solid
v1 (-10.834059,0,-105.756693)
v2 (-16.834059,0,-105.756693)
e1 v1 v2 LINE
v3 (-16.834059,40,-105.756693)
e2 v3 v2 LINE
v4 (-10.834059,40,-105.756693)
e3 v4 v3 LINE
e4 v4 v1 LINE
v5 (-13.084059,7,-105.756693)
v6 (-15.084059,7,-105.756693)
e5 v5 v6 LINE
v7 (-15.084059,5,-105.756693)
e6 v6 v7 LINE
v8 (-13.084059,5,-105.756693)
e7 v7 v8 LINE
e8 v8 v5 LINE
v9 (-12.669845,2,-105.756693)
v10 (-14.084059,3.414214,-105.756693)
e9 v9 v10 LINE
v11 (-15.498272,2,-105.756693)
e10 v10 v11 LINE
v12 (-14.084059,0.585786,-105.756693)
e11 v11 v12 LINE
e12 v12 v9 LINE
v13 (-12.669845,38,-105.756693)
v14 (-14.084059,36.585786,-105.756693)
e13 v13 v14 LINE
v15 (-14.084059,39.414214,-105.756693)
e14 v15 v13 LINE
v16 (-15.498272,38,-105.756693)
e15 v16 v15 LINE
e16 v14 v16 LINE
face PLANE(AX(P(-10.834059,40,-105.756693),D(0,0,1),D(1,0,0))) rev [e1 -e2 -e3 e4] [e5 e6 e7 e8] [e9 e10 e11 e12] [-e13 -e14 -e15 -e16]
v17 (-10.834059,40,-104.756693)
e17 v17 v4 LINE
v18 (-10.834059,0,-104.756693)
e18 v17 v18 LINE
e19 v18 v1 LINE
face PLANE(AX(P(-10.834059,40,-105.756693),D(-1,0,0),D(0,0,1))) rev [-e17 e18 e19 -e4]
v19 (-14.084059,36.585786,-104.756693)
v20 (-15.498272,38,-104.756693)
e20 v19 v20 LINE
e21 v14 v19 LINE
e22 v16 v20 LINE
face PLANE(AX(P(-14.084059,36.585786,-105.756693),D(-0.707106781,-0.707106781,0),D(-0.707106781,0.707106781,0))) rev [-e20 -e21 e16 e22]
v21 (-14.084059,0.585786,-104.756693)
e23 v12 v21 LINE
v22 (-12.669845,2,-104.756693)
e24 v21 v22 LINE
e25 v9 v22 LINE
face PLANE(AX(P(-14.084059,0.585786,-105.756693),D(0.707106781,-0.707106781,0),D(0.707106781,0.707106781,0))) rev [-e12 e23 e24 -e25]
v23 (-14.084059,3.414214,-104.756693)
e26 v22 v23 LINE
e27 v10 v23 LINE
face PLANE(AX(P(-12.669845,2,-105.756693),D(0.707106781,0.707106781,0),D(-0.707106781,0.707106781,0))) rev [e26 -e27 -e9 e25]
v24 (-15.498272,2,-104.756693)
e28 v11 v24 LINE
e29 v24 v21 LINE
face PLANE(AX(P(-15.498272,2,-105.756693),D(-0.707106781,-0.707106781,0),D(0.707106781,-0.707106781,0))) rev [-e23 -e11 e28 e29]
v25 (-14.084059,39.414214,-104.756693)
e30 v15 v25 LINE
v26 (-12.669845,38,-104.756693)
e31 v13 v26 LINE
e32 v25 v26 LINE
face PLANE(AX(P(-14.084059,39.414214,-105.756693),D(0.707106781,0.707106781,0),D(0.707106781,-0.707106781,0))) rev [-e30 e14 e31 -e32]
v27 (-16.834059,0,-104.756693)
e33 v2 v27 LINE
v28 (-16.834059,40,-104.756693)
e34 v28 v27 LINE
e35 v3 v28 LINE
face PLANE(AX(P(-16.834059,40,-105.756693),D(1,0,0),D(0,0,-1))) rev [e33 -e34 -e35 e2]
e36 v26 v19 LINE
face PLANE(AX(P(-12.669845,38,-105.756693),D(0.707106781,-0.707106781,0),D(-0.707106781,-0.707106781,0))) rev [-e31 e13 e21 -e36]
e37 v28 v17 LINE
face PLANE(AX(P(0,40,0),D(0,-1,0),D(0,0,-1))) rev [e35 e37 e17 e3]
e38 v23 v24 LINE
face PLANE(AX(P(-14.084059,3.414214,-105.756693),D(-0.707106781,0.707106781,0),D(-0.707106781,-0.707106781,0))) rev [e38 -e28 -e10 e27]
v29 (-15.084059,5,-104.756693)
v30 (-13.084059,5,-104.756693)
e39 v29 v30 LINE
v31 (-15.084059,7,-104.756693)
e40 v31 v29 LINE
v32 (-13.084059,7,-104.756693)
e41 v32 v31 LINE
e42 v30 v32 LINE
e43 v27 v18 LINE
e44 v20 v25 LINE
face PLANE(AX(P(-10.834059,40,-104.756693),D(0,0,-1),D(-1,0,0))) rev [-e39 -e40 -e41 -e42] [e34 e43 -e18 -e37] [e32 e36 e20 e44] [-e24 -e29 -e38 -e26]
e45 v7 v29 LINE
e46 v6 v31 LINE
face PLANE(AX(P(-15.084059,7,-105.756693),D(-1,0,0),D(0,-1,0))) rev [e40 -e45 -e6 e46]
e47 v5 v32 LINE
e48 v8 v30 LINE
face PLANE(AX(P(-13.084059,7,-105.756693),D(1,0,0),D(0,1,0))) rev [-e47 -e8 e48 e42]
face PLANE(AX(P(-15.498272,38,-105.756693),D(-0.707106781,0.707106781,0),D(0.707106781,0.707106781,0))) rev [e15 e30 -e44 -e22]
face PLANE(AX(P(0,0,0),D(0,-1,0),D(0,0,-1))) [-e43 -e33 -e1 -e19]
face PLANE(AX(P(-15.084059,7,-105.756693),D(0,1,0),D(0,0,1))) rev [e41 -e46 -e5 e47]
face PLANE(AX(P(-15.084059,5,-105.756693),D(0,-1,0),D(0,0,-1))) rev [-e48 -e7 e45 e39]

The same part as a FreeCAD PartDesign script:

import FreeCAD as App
import Part
import Sketcher
from FreeCAD import Vector

doc = App.newDocument("Part")
params = doc.addObject("Spreadsheet::Sheet", "Params")
for row, (alias, value) in enumerate([
    ("sketch1_width", "6 mm"),
    ("sketch1_height", "1 mm"),
    ("pad1_length", "40 mm"),
    ("sketch2_length", "2 mm"),
    ("sketch3_width", "2 mm"),
], start=1):
    params.set(f"A{row}", alias)
    params.set(f"B{row}", "=" + value)
    params.setAlias(f"B{row}", alias)

body = doc.addObject("PartDesign::Body", "Body")

sketch1 = body.newObject("Sketcher::SketchObject", "Sketch")
sketch1.AttachmentSupport = (doc.getObject("XZ_Plane"), [""])
sketch1.MapMode = "FlatFace"
sketch1.addGeometry(Part.LineSegment(Vector(-10.834059, -104.756693, 0), Vector(-10.834059, -105.756693, 0)), False)
sketch1.addGeometry(Part.LineSegment(Vector(-10.834059, -105.756693, 0), Vector(-16.834059, -105.756693, 0)), False)
sketch1.addGeometry(Part.LineSegment(Vector(-16.834059, -105.756693, 0), Vector(-16.834059, -104.756693, 0)), False)
sketch1.addGeometry(Part.LineSegment(Vector(-16.834059, -104.756693, 0), Vector(-10.834059, -104.756693, 0)), False)
sketch1.addConstraint(Sketcher.Constraint("Coincident", 0, 2, 1, 1))
sketch1.addConstraint(Sketcher.Constraint("Coincident", 1, 2, 2, 1))
sketch1.addConstraint(Sketcher.Constraint("Coincident", 2, 2, 3, 1))
sketch1.addConstraint(Sketcher.Constraint("Coincident", 3, 2, 0, 1))
sketch1.addConstraint(Sketcher.Constraint("Vertical", 0))
sketch1.addConstraint(Sketcher.Constraint("Horizontal", 1))
sketch1.addConstraint(Sketcher.Constraint("Vertical", 2))
sketch1.addConstraint(Sketcher.Constraint("Horizontal", 3))
sketch1.addConstraint(Sketcher.Constraint("DistanceX", 1, 2, 1, 1, 6.0))
sketch1.addConstraint(Sketcher.Constraint("DistanceY", 0, 2, 0, 1, 1.0))
sketch1.addConstraint(Sketcher.Constraint("DistanceX", 0, 2, -1, 1, 10.834059))
sketch1.addConstraint(Sketcher.Constraint("DistanceY", 0, 2, -1, 1, 105.756693))
sketch1.setExpression("Constraints[8]", "Params.sketch1_width")
sketch1.setExpression("Constraints[9]", "Params.sketch1_height")
pad1 = body.newObject("PartDesign::Pad", "Pad")
pad1.Profile = sketch1
pad1.setExpression("Length", "Params.pad1_length")
pad1.Reversed = True

sketch2 = body.newObject("Sketcher::SketchObject", "Sketch001")
sketch2.AttachmentSupport = (doc.getObject("XY_Plane"), [""])
sketch2.MapMode = "FlatFace"
sketch2.AttachmentOffset = App.Placement(Vector(0, 0, -104.756693), App.Rotation())
sketch2.addGeometry(Part.LineSegment(Vector(-12.669845, 2, 0), Vector(-14.084059, 3.414214, 0)), False)
sketch2.addGeometry(Part.LineSegment(Vector(-14.084059, 3.414214, 0), Vector(-15.498272, 2, 0)), False)
sketch2.addGeometry(Part.LineSegment(Vector(-15.498272, 2, 0), Vector(-14.084059, 0.585786, 0)), False)
sketch2.addGeometry(Part.LineSegment(Vector(-14.084059, 0.585786, 0), Vector(-12.669845, 2, 0)), False)
sketch2.addConstraint(Sketcher.Constraint("Coincident", 0, 2, 1, 1))
sketch2.addConstraint(Sketcher.Constraint("Coincident", 1, 2, 2, 1))
sketch2.addConstraint(Sketcher.Constraint("Coincident", 2, 2, 3, 1))
sketch2.addConstraint(Sketcher.Constraint("Coincident", 3, 2, 0, 1))
sketch2.addConstraint(Sketcher.Constraint("Perpendicular", 0, 1))
sketch2.addConstraint(Sketcher.Constraint("Perpendicular", 1, 2))
sketch2.addConstraint(Sketcher.Constraint("Perpendicular", 2, 3))
sketch2.addConstraint(Sketcher.Constraint("Horizontal", 1, 2, 3, 2))
sketch2.addConstraint(Sketcher.Constraint("Vertical", 0, 2, 2, 2))
sketch2.addConstraint(Sketcher.Constraint("Distance", 0, 2.0))
sketch2.addConstraint(Sketcher.Constraint("DistanceY", -1, 1, 1, 2, 2.0))
sketch2.addConstraint(Sketcher.Constraint("DistanceX", 0, 2, -1, 1, 14.084059))
sketch2.setExpression("Constraints[9]", "Params.sketch2_length")
pocket1 = body.newObject("PartDesign::Pocket", "Pocket")
pocket1.Profile = sketch2
pocket1.Type = "ThroughAll"
doc.recompute()

datumplane = body.newObject("PartDesign::Plane", "DatumPlane")
datumplane.AttachmentSupport = (doc.getObject("XZ_Plane"), [""])
datumplane.MapMode = "FlatFace"
datumplane.AttachmentOffset = App.Placement(Vector(0, 0, -20), App.Rotation())
mirrored = body.newObject("PartDesign::Mirrored", "Mirrored")
mirrored.Originals = [pocket1]
mirrored.MirrorPlane = (datumplane, [""])
body.Tip = mirrored

sketch3 = body.newObject("Sketcher::SketchObject", "Sketch002")
sketch3.AttachmentSupport = (doc.getObject("XY_Plane"), [""])
sketch3.MapMode = "FlatFace"
sketch3.AttachmentOffset = App.Placement(Vector(0, 0, -104.756693), App.Rotation())
sketch3.addGeometry(Part.LineSegment(Vector(-15.084059, 7, 0), Vector(-15.084059, 5, 0)), False)
sketch3.addGeometry(Part.LineSegment(Vector(-15.084059, 5, 0), Vector(-13.084059, 5, 0)), False)
sketch3.addGeometry(Part.LineSegment(Vector(-13.084059, 5, 0), Vector(-13.084059, 7, 0)), False)
sketch3.addGeometry(Part.LineSegment(Vector(-13.084059, 7, 0), Vector(-15.084059, 7, 0)), False)
sketch3.addConstraint(Sketcher.Constraint("Coincident", 0, 2, 1, 1))
sketch3.addConstraint(Sketcher.Constraint("Coincident", 1, 2, 2, 1))
sketch3.addConstraint(Sketcher.Constraint("Coincident", 2, 2, 3, 1))
sketch3.addConstraint(Sketcher.Constraint("Coincident", 3, 2, 0, 1))
sketch3.addConstraint(Sketcher.Constraint("Vertical", 0))
sketch3.addConstraint(Sketcher.Constraint("Horizontal", 1))
sketch3.addConstraint(Sketcher.Constraint("Vertical", 2))
sketch3.addConstraint(Sketcher.Constraint("Horizontal", 3))
sketch3.addConstraint(Sketcher.Constraint("Equal", 3, 0))
sketch3.addConstraint(Sketcher.Constraint("DistanceX", 1, 1, 1, 2, 2.0))
sketch3.addConstraint(Sketcher.Constraint("DistanceY", -1, 1, 0, 2, 5.0))
sketch3.addConstraint(Sketcher.Constraint("DistanceX", 0, 2, -1, 1, 15.084059))
sketch3.setExpression("Constraints[9]", "Params.sketch3_width")
pocket2 = body.newObject("PartDesign::Pocket", "Pocket001")
pocket2.Profile = sketch3
pocket2.Type = "ThroughAll"

doc.recompute()
